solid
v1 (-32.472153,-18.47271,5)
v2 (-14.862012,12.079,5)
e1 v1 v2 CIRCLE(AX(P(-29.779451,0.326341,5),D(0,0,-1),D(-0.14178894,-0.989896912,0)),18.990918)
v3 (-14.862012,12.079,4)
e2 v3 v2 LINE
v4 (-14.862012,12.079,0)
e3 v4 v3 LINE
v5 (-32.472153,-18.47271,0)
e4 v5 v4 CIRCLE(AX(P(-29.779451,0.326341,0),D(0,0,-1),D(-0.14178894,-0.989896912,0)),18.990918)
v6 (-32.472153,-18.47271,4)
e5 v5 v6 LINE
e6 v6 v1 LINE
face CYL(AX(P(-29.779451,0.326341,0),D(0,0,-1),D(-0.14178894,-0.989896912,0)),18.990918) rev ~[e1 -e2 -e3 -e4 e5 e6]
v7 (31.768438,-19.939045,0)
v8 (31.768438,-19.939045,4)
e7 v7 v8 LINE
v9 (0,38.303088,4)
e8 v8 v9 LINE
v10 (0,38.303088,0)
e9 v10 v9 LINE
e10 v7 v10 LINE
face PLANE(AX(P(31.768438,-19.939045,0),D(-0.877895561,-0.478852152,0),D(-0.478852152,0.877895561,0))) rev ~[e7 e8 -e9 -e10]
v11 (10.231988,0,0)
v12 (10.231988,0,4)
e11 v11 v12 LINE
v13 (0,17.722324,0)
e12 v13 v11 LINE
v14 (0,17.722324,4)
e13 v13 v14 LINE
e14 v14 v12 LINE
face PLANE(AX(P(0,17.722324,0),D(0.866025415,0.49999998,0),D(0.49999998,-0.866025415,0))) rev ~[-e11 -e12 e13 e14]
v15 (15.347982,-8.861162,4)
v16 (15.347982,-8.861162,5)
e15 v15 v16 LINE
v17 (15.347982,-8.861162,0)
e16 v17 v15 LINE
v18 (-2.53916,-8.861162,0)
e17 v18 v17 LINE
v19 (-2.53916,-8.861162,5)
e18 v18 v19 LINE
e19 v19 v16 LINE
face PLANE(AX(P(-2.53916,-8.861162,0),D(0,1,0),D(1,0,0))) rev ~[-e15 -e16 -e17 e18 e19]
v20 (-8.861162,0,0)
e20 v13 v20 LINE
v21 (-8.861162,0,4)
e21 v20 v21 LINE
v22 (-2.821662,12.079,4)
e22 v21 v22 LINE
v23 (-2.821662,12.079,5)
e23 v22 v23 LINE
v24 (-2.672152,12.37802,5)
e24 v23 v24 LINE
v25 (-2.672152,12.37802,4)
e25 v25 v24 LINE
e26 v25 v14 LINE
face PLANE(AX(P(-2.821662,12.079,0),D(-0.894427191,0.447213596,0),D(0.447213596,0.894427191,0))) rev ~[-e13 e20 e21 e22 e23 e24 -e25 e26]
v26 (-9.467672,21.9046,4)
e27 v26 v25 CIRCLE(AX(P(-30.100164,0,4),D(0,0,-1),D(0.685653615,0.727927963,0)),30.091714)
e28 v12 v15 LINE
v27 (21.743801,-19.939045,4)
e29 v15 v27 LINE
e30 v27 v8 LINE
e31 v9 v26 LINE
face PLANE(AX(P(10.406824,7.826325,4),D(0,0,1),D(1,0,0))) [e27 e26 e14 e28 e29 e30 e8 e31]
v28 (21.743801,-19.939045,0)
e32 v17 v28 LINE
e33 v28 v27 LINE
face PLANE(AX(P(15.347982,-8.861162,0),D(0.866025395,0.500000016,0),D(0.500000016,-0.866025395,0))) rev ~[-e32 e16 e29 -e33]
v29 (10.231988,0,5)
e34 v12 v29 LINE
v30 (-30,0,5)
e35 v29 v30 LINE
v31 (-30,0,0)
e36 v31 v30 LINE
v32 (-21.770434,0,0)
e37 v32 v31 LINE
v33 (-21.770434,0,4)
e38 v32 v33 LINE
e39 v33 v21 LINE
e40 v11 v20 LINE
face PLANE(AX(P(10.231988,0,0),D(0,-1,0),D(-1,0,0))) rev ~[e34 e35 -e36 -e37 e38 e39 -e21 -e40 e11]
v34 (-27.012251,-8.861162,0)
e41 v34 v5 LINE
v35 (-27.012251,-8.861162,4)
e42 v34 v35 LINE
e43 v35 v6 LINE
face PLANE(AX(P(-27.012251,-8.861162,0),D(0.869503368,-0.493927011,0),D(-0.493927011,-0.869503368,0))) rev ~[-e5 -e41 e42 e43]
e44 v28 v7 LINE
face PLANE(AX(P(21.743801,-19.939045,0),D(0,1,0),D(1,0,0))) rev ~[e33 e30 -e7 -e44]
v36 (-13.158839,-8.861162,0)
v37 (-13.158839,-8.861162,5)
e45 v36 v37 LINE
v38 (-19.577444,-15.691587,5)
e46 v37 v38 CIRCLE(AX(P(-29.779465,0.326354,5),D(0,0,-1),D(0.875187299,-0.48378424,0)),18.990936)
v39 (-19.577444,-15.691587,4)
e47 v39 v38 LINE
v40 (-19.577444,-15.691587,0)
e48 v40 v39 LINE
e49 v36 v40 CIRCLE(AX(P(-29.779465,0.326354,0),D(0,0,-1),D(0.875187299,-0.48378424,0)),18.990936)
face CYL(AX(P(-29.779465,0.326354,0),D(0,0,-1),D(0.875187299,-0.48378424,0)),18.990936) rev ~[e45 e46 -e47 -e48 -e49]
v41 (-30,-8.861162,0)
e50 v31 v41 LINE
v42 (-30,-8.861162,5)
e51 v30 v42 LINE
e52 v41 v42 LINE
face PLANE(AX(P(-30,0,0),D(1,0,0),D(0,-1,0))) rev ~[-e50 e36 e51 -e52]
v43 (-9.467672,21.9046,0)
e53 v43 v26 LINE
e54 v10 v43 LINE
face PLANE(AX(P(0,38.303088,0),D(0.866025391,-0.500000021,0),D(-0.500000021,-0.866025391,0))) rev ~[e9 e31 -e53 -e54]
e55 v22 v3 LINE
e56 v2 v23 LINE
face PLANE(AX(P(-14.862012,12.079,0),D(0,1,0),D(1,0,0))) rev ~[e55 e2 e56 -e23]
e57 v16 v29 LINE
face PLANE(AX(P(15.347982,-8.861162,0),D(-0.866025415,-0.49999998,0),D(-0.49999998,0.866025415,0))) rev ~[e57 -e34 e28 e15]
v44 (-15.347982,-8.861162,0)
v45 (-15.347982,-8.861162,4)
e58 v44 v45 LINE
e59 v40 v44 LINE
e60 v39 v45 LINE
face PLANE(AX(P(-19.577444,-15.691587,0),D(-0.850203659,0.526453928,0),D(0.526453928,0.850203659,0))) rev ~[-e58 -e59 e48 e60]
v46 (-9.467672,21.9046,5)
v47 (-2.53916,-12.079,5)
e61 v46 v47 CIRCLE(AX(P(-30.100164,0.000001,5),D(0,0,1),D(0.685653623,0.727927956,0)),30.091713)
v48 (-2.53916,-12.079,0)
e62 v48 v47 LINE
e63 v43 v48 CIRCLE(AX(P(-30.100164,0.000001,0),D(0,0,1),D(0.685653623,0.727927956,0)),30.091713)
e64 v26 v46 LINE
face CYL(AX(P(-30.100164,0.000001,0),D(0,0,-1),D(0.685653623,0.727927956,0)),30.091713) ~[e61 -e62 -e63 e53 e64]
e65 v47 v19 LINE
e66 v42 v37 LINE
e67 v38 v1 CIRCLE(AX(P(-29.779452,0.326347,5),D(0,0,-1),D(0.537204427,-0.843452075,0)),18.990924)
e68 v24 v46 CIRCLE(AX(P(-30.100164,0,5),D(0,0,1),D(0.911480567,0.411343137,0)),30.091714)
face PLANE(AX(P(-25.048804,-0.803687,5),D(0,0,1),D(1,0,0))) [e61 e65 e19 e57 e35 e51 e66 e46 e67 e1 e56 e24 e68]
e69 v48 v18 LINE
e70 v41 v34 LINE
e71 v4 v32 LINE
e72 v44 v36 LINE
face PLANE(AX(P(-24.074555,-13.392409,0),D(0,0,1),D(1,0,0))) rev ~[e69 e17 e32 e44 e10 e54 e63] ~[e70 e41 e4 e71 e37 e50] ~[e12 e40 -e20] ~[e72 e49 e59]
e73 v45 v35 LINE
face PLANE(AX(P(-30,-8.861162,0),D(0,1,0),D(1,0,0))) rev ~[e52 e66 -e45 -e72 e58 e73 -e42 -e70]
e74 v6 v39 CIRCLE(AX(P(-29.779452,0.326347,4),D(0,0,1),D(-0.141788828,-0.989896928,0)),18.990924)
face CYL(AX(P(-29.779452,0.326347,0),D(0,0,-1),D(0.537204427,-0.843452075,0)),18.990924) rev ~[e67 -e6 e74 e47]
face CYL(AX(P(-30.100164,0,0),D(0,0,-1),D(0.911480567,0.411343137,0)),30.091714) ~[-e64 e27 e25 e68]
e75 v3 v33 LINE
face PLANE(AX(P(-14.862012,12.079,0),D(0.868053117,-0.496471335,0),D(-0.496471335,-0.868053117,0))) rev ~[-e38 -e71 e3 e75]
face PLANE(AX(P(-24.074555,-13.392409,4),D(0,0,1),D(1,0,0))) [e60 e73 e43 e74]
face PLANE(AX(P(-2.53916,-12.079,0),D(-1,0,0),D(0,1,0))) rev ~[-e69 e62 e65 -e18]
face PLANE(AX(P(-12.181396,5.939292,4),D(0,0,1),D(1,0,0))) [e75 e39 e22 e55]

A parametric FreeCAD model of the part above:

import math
import FreeCAD as App
import Part
import Sketcher
from FreeCAD import Vector
Q = App.Units.Quantity

doc = App.newDocument("Part")
body = doc.addObject("PartDesign::Body", "Body")

sketch1 = body.newObject("Sketcher::SketchObject", "Sketch")
sketch1.AttachmentSupport = (doc.getObject("XY_Plane"), [""])
sketch1.MapMode = "FlatFace"
sketch1.addGeometry(Part.LineSegment(Vector(10.231988, 0, 0), Vector(-30, 0, 0)), False)
sketch1.addGeometry(Part.LineSegment(Vector(-30, 0, 0), Vector(-30, -8.861162, 0)), False)
sketch1.addGeometry(Part.LineSegment(Vector(-30, -8.861162, 0), Vector(-13.158839, -8.861162, 0)), False)
sketch1.addGeometry(Part.ArcOfCircle(Part.Circle(Vector(-29.779465, 0.326354, 0), Vector(0, 0, 1), 18.990936), math.radians(-57.506444), math.radians(-28.93285)), False)
sketch1.addGeometry(Part.ArcOfCircle(Part.Circle(Vector(-29.779452, 0.326347, 0), Vector(0, 0, 1), 18.990924), math.radians(-98.151371), math.radians(-57.506466)), False)
sketch1.addGeometry(Part.ArcOfCircle(Part.Circle(Vector(-29.779451, 0.326341, 0), Vector(0, 0, 1), 18.990918), math.radians(38.2327), math.radians(261.848622)), False)
sketch1.addGeometry(Part.LineSegment(Vector(-14.862012, 12.079, 0), Vector(-2.821662, 12.079, 0)), False)
sketch1.addGeometry(Part.LineSegment(Vector(-2.821662, 12.079, 0), Vector(-2.672152, 12.37802, 0)), False)
sketch1.addGeometry(Part.ArcOfCircle(Part.Circle(Vector(-30.100164, 0, 0), Vector(0, 0, 1), 30.091714), math.radians(24.289237), math.radians(46.712968)), False)
sketch1.addGeometry(Part.ArcOfCircle(Part.Circle(Vector(-30.100164, 0.000001, 0), Vector(0, 0, 1), 30.091713), math.radians(46.712967), math.radians(336.333883)), False)
sketch1.addGeometry(Part.LineSegment(Vector(-2.53916, -12.079, 0), Vector(-2.53916, -8.861162, 0)), False)
sketch1.addGeometry(Part.LineSegment(Vector(-2.53916, -8.861162, 0), Vector(15.347982, -8.861162, 0)), False)
sketch1.addGeometry(Part.LineSegment(Vector(15.347982, -8.861162, 0), Vector(10.231988, 0, 0)), False)
sketch1.addConstraint(Sketcher.Constraint("Coincident", 0, 2, 1, 1))
sketch1.addConstraint(Sketcher.Constraint("Coincident", 1, 2, 2, 1))
sketch1.addConstraint(Sketcher.Constraint("Coincident", 2, 2, 3, 2))
sketch1.addConstraint(Sketcher.Constraint("Coincident", 3, 1, 4, 2))
sketch1.addConstraint(Sketcher.Constraint("Coincident", 4, 1, 5, 2))
sketch1.addConstraint(Sketcher.Constraint("Coincident", 5, 1, 6, 1))
sketch1.addConstraint(Sketcher.Constraint("Coincident", 6, 2, 7, 1))
sketch1.addConstraint(Sketcher.Constraint("Coincident", 7, 2, 8, 1))
sketch1.addConstraint(Sketcher.Constraint("Coincident", 8, 2, 9, 1))
sketch1.addConstraint(Sketcher.Constraint("Coincident", 9, 2, 10, 1))
sketch1.addConstraint(Sketcher.Constraint("Coincident", 10, 2, 11, 1))
sketch1.addConstraint(Sketcher.Constraint("Coincident", 11, 2, 12, 1))
sketch1.addConstraint(Sketcher.Constraint("Coincident", 12, 2, 0, 1))
sketch1.addConstraint(Sketcher.Constraint("Horizontal", 0))
sketch1.addConstraint(Sketcher.Constraint("Vertical", 1))
sketch1.addConstraint(Sketcher.Constraint("Horizontal", 2))
sketch1.addConstraint(Sketcher.Constraint("Horizontal", 6))
sketch1.addConstraint(Sketcher.Constraint("Vertical", 10))
sketch1.addConstraint(Sketcher.Constraint("Horizontal", 11))
sketch1.addConstraint(Sketcher.Constraint("Coincident", 5, 3, 4, 3))
sketch1.addConstraint(Sketcher.Constraint("Coincident", 9, 3, 8, 3))
sketch1.addConstraint(Sketcher.Constraint("PointOnObject", 8, 3, -1))
sketch1.addConstraint(Sketcher.Constraint("PointOnObject", 0, 2, -1))
sketch1.addConstraint(Sketcher.Constraint("DistanceX", 0, 2, -1, 1, Q("30 mm")))
sketch1.addConstraint(Sketcher.Constraint("Radius", 5, Q("18.990918 mm")))
sketch1.addConstraint(Sketcher.Constraint("DistanceY", -1, 1, 5, 1, Q("12.079 mm")))
sketch1.addConstraint(Sketcher.Constraint("DistanceY", 9, 2, -1, 1, Q("12.079 mm")))
sketch1.addConstraint(Sketcher.Constraint("Radius", 3, Q("18.990936 mm")))
sketch1.addConstraint(Sketcher.Constraint("Radius", 8, Q("30.091714 mm")))
sketch1.addConstraint(Sketcher.Constraint("DistanceX", 2, 1, 2, 2, Q("16.841161 mm")))
sketch1.addConstraint(Sketcher.Constraint("DistanceX", 6, 1, 6, 2, Q("12.04035 mm")))
sketch1.addConstraint(Sketcher.Constraint("DistanceY", 10, 1, 10, 2, Q("3.217838 mm")))
sketch1.addConstraint(Sketcher.Constraint("DistanceY", -1, 1, 8, 2, Q("21.9046 mm")))
sketch1.addConstraint(Sketcher.Constraint("DistanceX", 8, 3, 3, 3, Q("0.320699 mm")))
sketch1.addConstraint(Sketcher.Constraint("DistanceX", 4, 3, 7, 2, Q("27.1073 mm")))
sketch1.addConstraint(Sketcher.Constraint("DistanceX", 6, 2, 9, 2, Q("0.282502 mm")))
sketch1.addConstraint(Sketcher.Constraint("Distance", 12, Q("10.231988 mm")))
sketch1.addConstraint(Sketcher.Constraint("DistanceX", 0, 2, 0, 1, Q("40.231988 mm")))
sketch1.addConstraint(Sketcher.Constraint("DistanceX", 11, 1, 11, 2, Q("17.887142 mm")))
sketch1.addConstraint(Sketcher.Constraint("DistanceY", 1, 2, 1, 1, Q("8.861162 mm")))
sketch1.addConstraint(Sketcher.Constraint("DistanceY", 4, 1, -1, 1, Q("18.47271 mm")))
sketch1.addConstraint(Sketcher.Constraint("DistanceX", 8, 3, 3, 1, Q("10.52272 mm")))
pad1 = body.newObject("PartDesign::Pad", "Pad")
pad1.Profile = sketch1
pad1.Length = 5

sketch2 = body.newObject("Sketcher::SketchObject", "Sketch001")
sketch2.AttachmentSupport = (doc.getObject("XY_Plane"), [""])
sketch2.MapMode = "FlatFace"
sketch2.addGeometry(Part.LineSegment(Vector(-27, -9, 0), Vector(-32, -18, 0)), False)
sketch2.addGeometry(Part.ArcOfCircle(Part.Circle(Vector(-30, 0, 0), Vector(0, 0, 1), 19), math.radians(-98), math.radians(-58)), False)
sketch2.addGeometry(Part.LineSegment(Vector(-20, -16, 0), Vector(-15, -9, 0)), False)
sketch2.addGeometry(Part.LineSegment(Vector(-15, -9, 0), Vector(-27, -9, 0)), False)
sketch2.addGeometry(Part.LineSegment(Vector(-22, 0, 0), Vector(-9, 0, 0)), False)
sketch2.addGeometry(Part.LineSegment(Vector(-9, 0, 0), Vector(-3, 12, 0)), False)
sketch2.addGeometry(Part.LineSegment(Vector(-3, 12, 0), Vector(-15, 12, 0)), False)
sketch2.addGeometry(Part.LineSegment(Vector(-15, 12, 0), Vector(-22, 0, 0)), False)
sketch2.addGeometry(Part.LineSegment(Vector(0, 18, 0), Vector(15, -9, 0)), False)
sketch2.addGeometry(Part.LineSegment(Vector(15, -9, 0), Vector(22, -20, 0)), False)
sketch2.addGeometry(Part.LineSegment(Vector(22, -20, 0), Vector(32, -20, 0)), False)
sketch2.addGeometry(Part.LineSegment(Vector(32, -20, 0), Vector(0, 38, 0)), False)
sketch2.addGeometry(Part.LineSegment(Vector(0, 38, 0), Vector(-9, 22, 0)), False)
sketch2.addGeometry(Part.ArcOfCircle(Part.Circle(Vector(-30, 0, 0), Vector(0, 0, 1), 30), math.radians(24), math.radians(47)), False)
sketch2.addGeometry(Part.LineSegment(Vector(-3, 12, 0), Vector(0, 18, 0)), False)
sketch2.addConstraint(Sketcher.Constraint("Coincident", 0, 2, 1, 1))
sketch2.addConstraint(Sketcher.Constraint("Coincident", 1, 2, 2, 1))
sketch2.addConstraint(Sketcher.Constraint("Coincident", 2, 2, 3, 1))
sketch2.addConstraint(Sketcher.Constraint("Coincident", 3, 2, 0, 1))
sketch2.addConstraint(Sketcher.Constraint("Coincident", 4, 2, 5, 1))
sketch2.addConstraint(Sketcher.Constraint("Coincident", 5, 2, 6, 1))
sketch2.addConstraint(Sketcher.Constraint("Coincident", 6, 2, 7, 1))
sketch2.addConstraint(Sketcher.Constraint("Coincident", 7, 2, 4, 1))
sketch2.addConstraint(Sketcher.Constraint("Coincident", 8, 2, 9, 1))
sketch2.addConstraint(Sketcher.Constraint("Coincident", 9, 2, 10, 1))
sketch2.addConstraint(Sketcher.Constraint("Coincident", 10, 2, 11, 1))
sketch2.addConstraint(Sketcher.Constraint("Coincident", 11, 2, 12, 1))
sketch2.addConstraint(Sketcher.Constraint("Coincident", 12, 2, 13, 2))
sketch2.addConstraint(Sketcher.Constraint("Coincident", 13, 1, 14, 1))
sketch2.addConstraint(Sketcher.Constraint("Coincident", 14, 2, 8, 1))
sketch2.addConstraint(Sketcher.Constraint("Horizontal", 3))
sketch2.addConstraint(Sketcher.Constraint("Horizontal", 4))
sketch2.addConstraint(Sketcher.Constraint("Horizontal", 6))
sketch2.addConstraint(Sketcher.Constraint("Horizontal", 10))
sketch2.addConstraint(Sketcher.Constraint("Symmetric", 2, 2, 8, 2, -2))
sketch2.addConstraint(Sketcher.Constraint("PointOnObject", 13, 3, -1))
sketch2.addConstraint(Sketcher.Constraint("PointOnObject", 4, 2, -1))
sketch2.addConstraint(Sketcher.Constraint("PointOnObject", 11, 2, -2))
sketch2.addConstraint(Sketcher.Constraint("PointOnObject", 14, 2, -2))
sketch2.addConstraint(Sketcher.Constraint("Parallel", 8, 9))
sketch2.addConstraint(Sketcher.Constraint("Parallel", 5, 14))
sketch2.addConstraint(Sketcher.Constraint("Angle", 8, Q("-60.000001 deg")))
sketch2.addConstraint(Sketcher.Constraint("Angle", 12, Q("-120.000001 deg")))
sketch2.addConstraint(Sketcher.Constraint("DistanceY", -1, 1, 5, 2, Q("12.079 mm")))
sketch2.addConstraint(Sketcher.Constraint("Radius", 1, Q("18.990924 mm")))
sketch2.addConstraint(Sketcher.Constraint("Radius", 13, Q("30.091714 mm")))
sketch2.addConstraint(Sketcher.Constraint("DistanceX", 3, 2, 3, 1, Q("11.664269 mm")))
sketch2.addConstraint(Sketcher.Constraint("DistanceX", 6, 2, 6, 1, Q("12.04035 mm")))
sketch2.addConstraint(Sketcher.Constraint("DistanceX", -1, 1, 9, 2, Q("21.743801 mm")))
sketch2.addConstraint(Sketcher.Constraint("DistanceY", -1, 1, 12, 2, Q("21.9046 mm")))
sketch2.addConstraint(Sketcher.Constraint("DistanceX", 0, 2, 1, 3, Q("2.692701 mm")))
sketch2.addConstraint(Sketcher.Constraint("DistanceX", 1, 3, 3, 2, Q("2.767201 mm")))
sketch2.addConstraint(Sketcher.Constraint("DistanceX", 4, 2, 5, 2, Q("6.0395 mm")))
sketch2.addConstraint(Sketcher.Constraint("DistanceX", 4, 2, 10, 2, Q("40.6296 mm")))
sketch2.addConstraint(Sketcher.Constraint("Distance", 2, Q("8.033869 mm")))
sketch2.addConstraint(Sketcher.Constraint("DistanceX", 4, 1, 4, 2, Q("12.909272 mm")))
sketch2.addConstraint(Sketcher.Constraint("DistanceX", 10, 1, 10, 2, Q("10.024637 mm")))
sketch2.addConstraint(Sketcher.Constraint("DistanceY", 0, 2, -1, 1, Q("18.47271 mm")))
sketch2.addConstraint(Sketcher.Constraint("DistanceX", 3, 2, -1, 1, Q("27.012251 mm")))
sketch2.addConstraint(Sketcher.Constraint("DistanceY", -1, 1, 11, 2, Q("38.303088 mm")))
sketch2.addConstraint(Sketcher.Constraint("DistanceY", -1, 1, 13, 1, Q("12.37802 mm")))
pad2 = body.newObject("PartDesign::Pad", "Pad001")
pad2.Profile = sketch2
pad2.Length = 4

doc.recompute()
